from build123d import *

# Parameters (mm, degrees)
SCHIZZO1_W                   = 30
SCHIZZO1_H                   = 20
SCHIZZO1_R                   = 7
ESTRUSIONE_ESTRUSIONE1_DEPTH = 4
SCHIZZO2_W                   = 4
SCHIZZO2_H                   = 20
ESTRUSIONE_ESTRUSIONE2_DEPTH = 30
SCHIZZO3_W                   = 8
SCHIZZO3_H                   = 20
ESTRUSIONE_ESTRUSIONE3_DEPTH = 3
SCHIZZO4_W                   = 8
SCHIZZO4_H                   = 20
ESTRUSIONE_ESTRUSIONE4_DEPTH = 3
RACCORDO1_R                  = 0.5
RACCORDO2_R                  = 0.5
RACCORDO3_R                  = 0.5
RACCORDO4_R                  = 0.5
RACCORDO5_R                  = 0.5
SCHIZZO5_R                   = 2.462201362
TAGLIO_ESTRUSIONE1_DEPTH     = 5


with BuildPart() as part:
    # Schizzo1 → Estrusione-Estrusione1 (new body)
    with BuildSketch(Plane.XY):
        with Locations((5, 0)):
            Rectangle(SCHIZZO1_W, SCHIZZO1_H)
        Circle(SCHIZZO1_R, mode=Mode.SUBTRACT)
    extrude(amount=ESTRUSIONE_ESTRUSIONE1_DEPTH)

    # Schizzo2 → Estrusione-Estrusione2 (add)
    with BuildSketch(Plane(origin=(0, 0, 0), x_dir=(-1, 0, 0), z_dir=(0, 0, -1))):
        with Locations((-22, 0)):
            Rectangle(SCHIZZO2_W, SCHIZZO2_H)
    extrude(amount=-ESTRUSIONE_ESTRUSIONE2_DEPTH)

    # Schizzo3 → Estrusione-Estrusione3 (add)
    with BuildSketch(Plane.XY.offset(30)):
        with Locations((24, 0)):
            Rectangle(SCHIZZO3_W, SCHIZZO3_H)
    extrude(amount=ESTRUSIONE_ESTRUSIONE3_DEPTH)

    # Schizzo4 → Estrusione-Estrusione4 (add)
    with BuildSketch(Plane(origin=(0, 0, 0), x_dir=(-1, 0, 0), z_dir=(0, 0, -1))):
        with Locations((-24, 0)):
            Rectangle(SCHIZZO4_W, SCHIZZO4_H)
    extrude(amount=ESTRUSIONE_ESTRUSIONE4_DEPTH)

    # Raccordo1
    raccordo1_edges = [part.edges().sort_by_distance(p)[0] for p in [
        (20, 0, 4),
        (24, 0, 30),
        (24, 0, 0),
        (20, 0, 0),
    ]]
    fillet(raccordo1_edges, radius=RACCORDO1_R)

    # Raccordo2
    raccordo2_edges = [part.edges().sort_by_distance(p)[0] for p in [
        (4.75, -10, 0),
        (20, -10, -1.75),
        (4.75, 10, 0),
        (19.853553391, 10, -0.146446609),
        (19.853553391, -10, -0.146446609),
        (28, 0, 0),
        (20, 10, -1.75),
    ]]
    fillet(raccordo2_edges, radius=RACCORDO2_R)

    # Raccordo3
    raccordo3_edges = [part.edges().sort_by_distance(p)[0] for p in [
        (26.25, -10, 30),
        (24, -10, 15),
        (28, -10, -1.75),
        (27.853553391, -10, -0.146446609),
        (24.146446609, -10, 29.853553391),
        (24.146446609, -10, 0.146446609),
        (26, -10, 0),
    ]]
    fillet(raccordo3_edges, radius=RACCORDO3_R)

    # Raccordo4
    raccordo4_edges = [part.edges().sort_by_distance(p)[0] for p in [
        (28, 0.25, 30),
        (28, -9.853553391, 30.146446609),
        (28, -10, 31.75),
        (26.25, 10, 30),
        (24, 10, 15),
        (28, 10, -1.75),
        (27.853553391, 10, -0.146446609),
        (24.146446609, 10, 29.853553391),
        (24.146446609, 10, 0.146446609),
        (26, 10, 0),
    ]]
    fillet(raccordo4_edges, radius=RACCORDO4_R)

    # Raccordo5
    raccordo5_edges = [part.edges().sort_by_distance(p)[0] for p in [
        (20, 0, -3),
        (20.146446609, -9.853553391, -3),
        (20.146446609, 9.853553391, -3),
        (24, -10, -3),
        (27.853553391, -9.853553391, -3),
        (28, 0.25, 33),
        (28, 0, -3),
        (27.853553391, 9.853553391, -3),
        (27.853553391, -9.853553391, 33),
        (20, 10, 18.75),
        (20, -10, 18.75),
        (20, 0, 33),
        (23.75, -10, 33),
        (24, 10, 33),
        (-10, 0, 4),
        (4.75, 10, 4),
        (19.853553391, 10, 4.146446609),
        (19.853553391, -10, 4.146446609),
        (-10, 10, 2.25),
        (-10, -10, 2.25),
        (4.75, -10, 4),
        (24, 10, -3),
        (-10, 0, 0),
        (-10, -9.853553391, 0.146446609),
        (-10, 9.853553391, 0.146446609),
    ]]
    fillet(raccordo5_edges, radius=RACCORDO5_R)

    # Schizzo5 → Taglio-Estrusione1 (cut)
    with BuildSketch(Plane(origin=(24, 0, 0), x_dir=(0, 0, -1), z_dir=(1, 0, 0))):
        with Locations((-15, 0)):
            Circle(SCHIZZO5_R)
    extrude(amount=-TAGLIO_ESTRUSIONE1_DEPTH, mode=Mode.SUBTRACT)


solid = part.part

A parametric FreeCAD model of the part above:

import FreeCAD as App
import Part
import Sketcher

V = App.Vector
Q = App.Units.Quantity


def edges_at(feature, points):
    """Names of the edges that pass closest to the given points."""
    edges = feature.Shape.Edges
    near = lambda p: min(range(len(edges)), key=lambda i: edges[i].distToShape(Part.Vertex(*p))[0])
    return sorted({f"Edge{near(p) + 1}" for p in points})


def add_polygon(sketch, points):
    """Adds a closed chain of lines whose ends are joined by coincident constraints."""
    first, n = sketch.GeometryCount, len(points)
    for a, b in zip(points, points[1:] + points[:1]):
        sketch.addGeometry(Part.LineSegment(App.Vector(*a, 0), App.Vector(*b, 0)), False)
    for i in range(n):
        sketch.addConstraint(Sketcher.Constraint("Coincident", first + i, 2, first + (i + 1) % n, 1))

doc = App.newDocument("Part")
body = doc.addObject("PartDesign::Body", "Body")

sketch1 = body.newObject("Sketcher::SketchObject", "Sketch")
sketch1.AttachmentSupport = (doc.getObject("XY_Plane"), [""])
sketch1.MapMode = "FlatFace"
add_polygon(sketch1, [(-10, 10), (-10, -10), (20, -10), (20, 10)])
sketch1.addGeometry(Part.Circle(V(0, 0, 0), V(0, 0, 1), 7), False)
sketch1.addConstraint(Sketcher.Constraint("Vertical", 0))
sketch1.addConstraint(Sketcher.Constraint("Horizontal", 1))
sketch1.addConstraint(Sketcher.Constraint("Vertical", 2))
sketch1.addConstraint(Sketcher.Constraint("Horizontal", 3))
sketch1.addConstraint(Sketcher.Constraint("Coincident", 4, 3, -1, 1))
sketch1.addConstraint(Sketcher.Constraint("Diameter", 4, Q("14 mm")))
sketch1.addConstraint(Sketcher.Constraint("DistanceX", 1, 1, 1, 2, Q("30 mm")))
sketch1.addConstraint(Sketcher.Constraint("DistanceY", 0, 2, 0, 1, Q("20 mm")))
sketch1.addConstraint(Sketcher.Constraint("DistanceX", 0, 2, -1, 1, Q("10 mm")))
sketch1.addConstraint(Sketcher.Constraint("DistanceY", 0, 2, -1, 1, Q("10 mm")))
pad1 = body.newObject("PartDesign::Pad", "Pad")
pad1.Profile = sketch1
pad1.Length = 4

sketch2 = body.newObject("Sketcher::SketchObject", "Sketch001")
sketch2.AttachmentSupport = (doc.getObject("XY_Plane"), [""])
sketch2.MapMode = "FlatFace"
add_polygon(sketch2, [(24, 10), (24, -10), (20, -10), (20, 10)])
sketch2.addConstraint(Sketcher.Constraint("Vertical", 0))
sketch2.addConstraint(Sketcher.Constraint("Horizontal", 1))
sketch2.addConstraint(Sketcher.Constraint("Vertical", 2))
sketch2.addConstraint(Sketcher.Constraint("Horizontal", 3))
sketch2.addConstraint(Sketcher.Constraint("DistanceX", 1, 2, 1, 1, Q("4 mm")))
sketch2.addConstraint(Sketcher.Constraint("DistanceY", 0, 2, 0, 1, Q("20 mm")))
sketch2.addConstraint(Sketcher.Constraint("DistanceX", -1, 1, 0, 2, Q("24 mm")))
sketch2.addConstraint(Sketcher.Constraint("DistanceY", 0, 2, -1, 1, Q("10 mm")))
pad2 = body.newObject("PartDesign::Pad", "Pad001")
pad2.Profile = sketch2
pad2.Length = 30

sketch3 = body.newObject("Sketcher::SketchObject", "Sketch002")
sketch3.AttachmentSupport = (doc.getObject("XY_Plane"), [""])
sketch3.MapMode = "FlatFace"
sketch3.AttachmentOffset = App.Placement(V(0, 0, 30), App.Rotation())
add_polygon(sketch3, [(20, 10), (20, -10), (28, -10), (28, 10)])
sketch3.addConstraint(Sketcher.Constraint("Vertical", 0))
sketch3.addConstraint(Sketcher.Constraint("Horizontal", 1))
sketch3.addConstraint(Sketcher.Constraint("Vertical", 2))
sketch3.addConstraint(Sketcher.Constraint("Horizontal", 3))
sketch3.addConstraint(Sketcher.Constraint("DistanceX", 1, 1, 1, 2, Q("8 mm")))
sketch3.addConstraint(Sketcher.Constraint("DistanceY", 0, 2, 0, 1, Q("20 mm")))
sketch3.addConstraint(Sketcher.Constraint("DistanceX", -1, 1, 0, 2, Q("20 mm")))
sketch3.addConstraint(Sketcher.Constraint("DistanceY", 0, 2, -1, 1, Q("10 mm")))
pad3 = body.newObject("PartDesign::Pad", "Pad002")
pad3.Profile = sketch3
pad3.Length = 3

sketch4 = body.newObject("Sketcher::SketchObject", "Sketch003")
sketch4.AttachmentSupport = (doc.getObject("XY_Plane"), [""])
sketch4.MapMode = "FlatFace"
add_polygon(sketch4, [(28, 10), (28, -10), (20, -10), (20, 10)])
sketch4.addConstraint(Sketcher.Constraint("Vertical", 0))
sketch4.addConstraint(Sketcher.Constraint("Horizontal", 1))
sketch4.addConstraint(Sketcher.Constraint("Vertical", 2))
sketch4.addConstraint(Sketcher.Constraint("Horizontal", 3))
sketch4.addConstraint(Sketcher.Constraint("DistanceX", 1, 2, 1, 1, Q("8 mm")))
sketch4.addConstraint(Sketcher.Constraint("DistanceY", 0, 2, 0, 1, Q("20 mm")))
sketch4.addConstraint(Sketcher.Constraint("DistanceX", -1, 1, 0, 2, Q("28 mm")))
sketch4.addConstraint(Sketcher.Constraint("DistanceY", 0, 2, -1, 1, Q("10 mm")))
pad4 = body.newObject("PartDesign::Pad", "Pad003")
pad4.Profile = sketch4
pad4.Length = 3
pad4.Reversed = True
doc.recompute()

fillet = body.newObject("PartDesign::Fillet", "Fillet")
fillet.Base = (pad4, edges_at(pad4, [
    (20, 0, 4),
    (24, 0, 30),
    (24, 0, 0),
    (20, 0, 0),
]))
fillet.Radius = 0.5
doc.recompute()

fillet2 = body.newObject("PartDesign::Fillet", "Fillet001")
fillet2.Base = (fillet, edges_at(fillet, [
    (4.75, -10, 0),
    (20, -10, -1.75),
    (4.75, 10, 0),
    (19.854, 10, -0.146),
    (19.854, -10, -0.146),
    (28, 0, 0),
    (20, 10, -1.75),
]))
fillet2.Radius = 0.5
doc.recompute()

fillet3 = body.newObject("PartDesign::Fillet", "Fillet002")
fillet3.Base = (fillet2, edges_at(fillet2, [
    (26.25, -10, 30),
    (24, -10, 15),
    (28, -10, -1.75),
    (27.854, -10, -0.146),
    (24.146, -10, 29.854),
    (24.146, -10, 0.146),
    (26, -10, 0),
]))
fillet3.Radius = 0.5
doc.recompute()

fillet4 = body.newObject("PartDesign::Fillet", "Fillet003")
fillet4.Base = (fillet3, edges_at(fillet3, [
    (28, 0.25, 30),
    (28, -9.854, 30.146),
    (28, -10, 31.75),
    (26.25, 10, 30),
    (24, 10, 15),
    (28, 10, -1.75),
    (27.854, 10, -0.146),
    (24.146, 10, 29.854),
    (24.146, 10, 0.146),
    (26, 10, 0),
]))
fillet4.Radius = 0.5
doc.recompute()

fillet5 = body.newObject("PartDesign::Fillet", "Fillet004")
fillet5.Base = (fillet4, edges_at(fillet4, [
    (20, 0, -3),
    (20.146, -9.854, -3),
    (20.146, 9.854, -3),
    (24, -10, -3),
    (27.854, -9.854, -3),
    (28, 0.25, 33),
    (28, 0, -3),
    (27.854, 9.854, -3),
    (27.854, -9.854, 33),
    (20, 10, 18.75),
    (20, -10, 18.75),
    (20, 0, 33),
    (23.75, -10, 33),
    (24, 10, 33),
    (-10, 0, 4),
    (4.75, 10, 4),
    (19.854, 10, 4.146),
    (19.854, -10, 4.146),
    (-10, 10, 2.25),
    (-10, -10, 2.25),
    (4.75, -10, 4),
    (24, 10, -3),
    (-10, 0, 0),
    (-10, -9.854, 0.146),
    (-10, 9.854, 0.146),
]))
fillet5.Radius = 0.5

sketch5 = body.newObject("Sketcher::SketchObject", "Sketch004")
sketch5.AttachmentSupport = (doc.getObject("YZ_Plane"), [""])
sketch5.MapMode = "FlatFace"
sketch5.AttachmentOffset = App.Placement(V(0, 0, 24), App.Rotation())
sketch5.addGeometry(Part.Circle(V(0, 15, 0), V(0, 0, 1), 2.462201), False)
sketch5.addConstraint(Sketcher.Constraint("PointOnObject", 0, 3, -2))
sketch5.addConstraint(Sketcher.Constraint("DistanceY", -1, 1, 0, 3, Q("15 mm")))
sketch5.addConstraint(Sketcher.Constraint("Diameter", 0, Q("4.924403 mm")))
pocket1 = body.newObject("PartDesign::Pocket", "Pocket")
pocket1.Profile = sketch5
pocket1.Length = 5

doc.recompute()
